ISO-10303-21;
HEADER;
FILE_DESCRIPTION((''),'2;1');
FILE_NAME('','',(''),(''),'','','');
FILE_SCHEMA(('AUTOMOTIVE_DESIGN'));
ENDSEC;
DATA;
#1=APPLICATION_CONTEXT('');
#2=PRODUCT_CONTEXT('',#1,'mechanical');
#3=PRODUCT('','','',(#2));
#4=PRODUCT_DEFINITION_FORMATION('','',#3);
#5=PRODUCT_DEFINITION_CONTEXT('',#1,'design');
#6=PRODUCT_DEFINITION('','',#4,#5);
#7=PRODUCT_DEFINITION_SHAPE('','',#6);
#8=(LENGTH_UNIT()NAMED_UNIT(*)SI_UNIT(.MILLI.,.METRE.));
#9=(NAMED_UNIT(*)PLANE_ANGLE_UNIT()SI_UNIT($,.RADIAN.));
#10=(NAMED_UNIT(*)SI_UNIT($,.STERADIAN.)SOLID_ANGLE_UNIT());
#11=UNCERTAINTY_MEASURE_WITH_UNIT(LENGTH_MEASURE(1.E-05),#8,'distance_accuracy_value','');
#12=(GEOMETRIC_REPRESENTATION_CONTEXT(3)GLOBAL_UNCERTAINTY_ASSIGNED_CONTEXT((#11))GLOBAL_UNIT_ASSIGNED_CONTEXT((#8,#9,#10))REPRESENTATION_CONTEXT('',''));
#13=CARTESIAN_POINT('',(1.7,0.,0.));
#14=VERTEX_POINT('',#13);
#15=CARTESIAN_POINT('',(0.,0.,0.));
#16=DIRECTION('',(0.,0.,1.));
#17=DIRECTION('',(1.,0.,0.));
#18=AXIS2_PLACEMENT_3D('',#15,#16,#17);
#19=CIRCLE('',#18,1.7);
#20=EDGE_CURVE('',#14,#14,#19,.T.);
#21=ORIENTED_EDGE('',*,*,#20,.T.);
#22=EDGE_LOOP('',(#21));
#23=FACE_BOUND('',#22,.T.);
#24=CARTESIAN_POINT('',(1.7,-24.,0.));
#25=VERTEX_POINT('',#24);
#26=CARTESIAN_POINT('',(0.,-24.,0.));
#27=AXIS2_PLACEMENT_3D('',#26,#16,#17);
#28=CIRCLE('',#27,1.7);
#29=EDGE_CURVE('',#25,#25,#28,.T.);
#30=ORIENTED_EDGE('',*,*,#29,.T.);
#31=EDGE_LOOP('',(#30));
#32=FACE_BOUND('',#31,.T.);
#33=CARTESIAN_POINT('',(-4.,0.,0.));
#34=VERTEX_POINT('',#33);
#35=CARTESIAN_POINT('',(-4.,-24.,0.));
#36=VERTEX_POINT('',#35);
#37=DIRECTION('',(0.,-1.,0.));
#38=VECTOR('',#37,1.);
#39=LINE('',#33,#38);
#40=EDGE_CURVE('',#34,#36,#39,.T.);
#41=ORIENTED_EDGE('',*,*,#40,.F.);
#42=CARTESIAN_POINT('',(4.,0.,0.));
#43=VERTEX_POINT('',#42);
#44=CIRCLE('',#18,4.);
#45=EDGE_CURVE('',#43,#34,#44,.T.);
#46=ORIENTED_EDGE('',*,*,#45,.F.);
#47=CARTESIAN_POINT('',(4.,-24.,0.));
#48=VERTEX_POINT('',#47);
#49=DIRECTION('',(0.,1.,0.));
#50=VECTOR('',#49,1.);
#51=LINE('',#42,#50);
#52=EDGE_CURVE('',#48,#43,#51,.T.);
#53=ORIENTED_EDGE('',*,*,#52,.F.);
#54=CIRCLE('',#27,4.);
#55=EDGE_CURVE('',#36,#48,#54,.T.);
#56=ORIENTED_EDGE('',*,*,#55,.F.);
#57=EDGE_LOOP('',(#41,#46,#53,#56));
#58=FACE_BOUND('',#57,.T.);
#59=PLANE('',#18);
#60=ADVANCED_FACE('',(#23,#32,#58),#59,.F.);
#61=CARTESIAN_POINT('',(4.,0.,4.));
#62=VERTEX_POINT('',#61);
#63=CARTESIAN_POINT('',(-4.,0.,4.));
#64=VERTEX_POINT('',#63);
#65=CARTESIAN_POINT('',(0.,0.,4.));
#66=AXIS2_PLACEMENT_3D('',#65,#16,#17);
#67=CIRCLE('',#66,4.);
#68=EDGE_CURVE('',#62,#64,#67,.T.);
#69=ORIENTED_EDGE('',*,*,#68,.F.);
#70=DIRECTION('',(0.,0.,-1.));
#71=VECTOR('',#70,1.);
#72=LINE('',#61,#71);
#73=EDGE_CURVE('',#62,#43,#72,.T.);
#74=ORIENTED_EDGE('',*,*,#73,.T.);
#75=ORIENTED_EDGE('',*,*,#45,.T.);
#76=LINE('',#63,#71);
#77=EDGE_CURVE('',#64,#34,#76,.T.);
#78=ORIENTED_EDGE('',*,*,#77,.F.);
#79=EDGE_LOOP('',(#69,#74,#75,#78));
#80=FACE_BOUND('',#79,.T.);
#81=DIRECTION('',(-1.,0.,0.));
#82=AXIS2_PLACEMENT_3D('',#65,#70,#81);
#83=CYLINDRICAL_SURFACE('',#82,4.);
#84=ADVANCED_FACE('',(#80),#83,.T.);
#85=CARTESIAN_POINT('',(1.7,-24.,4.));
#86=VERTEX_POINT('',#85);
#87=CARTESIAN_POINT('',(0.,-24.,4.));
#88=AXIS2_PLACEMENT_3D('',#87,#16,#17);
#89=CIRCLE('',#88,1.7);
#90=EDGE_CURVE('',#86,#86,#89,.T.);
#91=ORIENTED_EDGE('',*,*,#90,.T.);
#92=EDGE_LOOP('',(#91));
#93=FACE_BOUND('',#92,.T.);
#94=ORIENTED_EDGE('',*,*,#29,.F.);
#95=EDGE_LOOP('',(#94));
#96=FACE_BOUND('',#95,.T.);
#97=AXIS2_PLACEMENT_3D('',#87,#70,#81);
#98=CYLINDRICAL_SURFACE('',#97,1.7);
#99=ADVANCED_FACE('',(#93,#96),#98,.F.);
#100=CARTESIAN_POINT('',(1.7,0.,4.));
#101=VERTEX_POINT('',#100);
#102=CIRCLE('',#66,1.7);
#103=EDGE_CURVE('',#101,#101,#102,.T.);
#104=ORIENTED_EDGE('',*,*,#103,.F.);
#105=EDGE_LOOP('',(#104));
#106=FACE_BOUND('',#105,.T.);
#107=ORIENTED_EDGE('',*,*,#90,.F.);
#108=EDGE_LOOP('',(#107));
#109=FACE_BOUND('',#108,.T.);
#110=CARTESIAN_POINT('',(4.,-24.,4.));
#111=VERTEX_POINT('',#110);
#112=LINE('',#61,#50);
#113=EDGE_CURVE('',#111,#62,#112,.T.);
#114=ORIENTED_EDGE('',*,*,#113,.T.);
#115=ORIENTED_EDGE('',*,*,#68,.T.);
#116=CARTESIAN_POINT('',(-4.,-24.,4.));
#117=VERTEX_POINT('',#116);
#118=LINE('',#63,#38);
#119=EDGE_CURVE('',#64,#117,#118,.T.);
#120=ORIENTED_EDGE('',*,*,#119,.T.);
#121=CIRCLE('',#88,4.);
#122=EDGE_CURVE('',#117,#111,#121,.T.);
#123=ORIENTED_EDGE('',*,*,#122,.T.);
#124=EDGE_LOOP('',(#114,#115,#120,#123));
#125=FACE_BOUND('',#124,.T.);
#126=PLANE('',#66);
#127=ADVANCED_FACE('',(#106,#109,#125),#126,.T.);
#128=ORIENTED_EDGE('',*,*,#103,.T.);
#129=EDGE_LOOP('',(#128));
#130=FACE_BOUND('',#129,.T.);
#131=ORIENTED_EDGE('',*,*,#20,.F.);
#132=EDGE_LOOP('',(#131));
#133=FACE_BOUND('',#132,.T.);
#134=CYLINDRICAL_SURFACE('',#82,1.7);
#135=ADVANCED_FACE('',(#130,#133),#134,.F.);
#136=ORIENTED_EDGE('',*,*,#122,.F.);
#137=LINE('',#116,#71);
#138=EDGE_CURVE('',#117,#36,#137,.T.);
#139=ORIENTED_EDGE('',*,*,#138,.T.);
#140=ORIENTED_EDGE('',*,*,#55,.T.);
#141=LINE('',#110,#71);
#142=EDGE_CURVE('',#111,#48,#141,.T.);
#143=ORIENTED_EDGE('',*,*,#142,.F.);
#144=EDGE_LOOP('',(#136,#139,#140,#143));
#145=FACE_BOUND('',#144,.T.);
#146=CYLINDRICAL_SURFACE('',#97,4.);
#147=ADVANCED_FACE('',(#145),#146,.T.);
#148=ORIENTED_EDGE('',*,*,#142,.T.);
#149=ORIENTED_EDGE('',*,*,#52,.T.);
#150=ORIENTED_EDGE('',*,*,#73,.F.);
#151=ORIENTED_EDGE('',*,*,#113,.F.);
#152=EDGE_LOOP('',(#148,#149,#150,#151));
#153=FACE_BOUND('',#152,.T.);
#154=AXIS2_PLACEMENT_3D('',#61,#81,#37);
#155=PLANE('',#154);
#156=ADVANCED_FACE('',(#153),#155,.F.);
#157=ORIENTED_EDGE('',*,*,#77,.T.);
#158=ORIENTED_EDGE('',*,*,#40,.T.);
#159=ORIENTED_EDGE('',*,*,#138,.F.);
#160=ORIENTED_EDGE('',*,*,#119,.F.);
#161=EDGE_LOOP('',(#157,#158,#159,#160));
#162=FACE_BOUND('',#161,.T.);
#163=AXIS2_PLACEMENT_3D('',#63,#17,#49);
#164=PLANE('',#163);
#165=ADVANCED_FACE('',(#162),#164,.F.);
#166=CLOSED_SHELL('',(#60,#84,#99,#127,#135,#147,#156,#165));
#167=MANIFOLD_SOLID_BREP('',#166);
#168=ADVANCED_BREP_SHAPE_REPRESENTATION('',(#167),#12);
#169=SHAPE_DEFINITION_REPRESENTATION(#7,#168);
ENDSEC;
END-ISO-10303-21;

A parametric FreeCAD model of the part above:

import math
import FreeCAD as App
import Part
import Sketcher

doc = App.newDocument("Part")
body = doc.addObject("PartDesign::Body", "Body")

sketch1 = body.newObject("Sketcher::SketchObject", "Sketch")
sketch1.AttachmentSupport = (doc.getObject("XY_Plane"), [""])
sketch1.MapMode = "FlatFace"
sketch1.addGeometry([
    Part.LineSegment(App.Vector(4, -24, 0), App.Vector(4, 0, 0)),
    Part.ArcOfCircle(Part.Circle(App.Vector(0, 0, 0), App.Vector(0, 0, 1), 4), math.radians(0), math.radians(180)),
    Part.LineSegment(App.Vector(-4, 0, 0), App.Vector(-4, -24, 0)),
    Part.ArcOfCircle(Part.Circle(App.Vector(0, -24, 0), App.Vector(0, 0, 1), 4), math.radians(180), math.radians(360)),
    Part.Circle(App.Vector(0, -24, 0), App.Vector(0, 0, 1), 1.7),
    Part.Circle(App.Vector(0, 0, 0), App.Vector(0, 0, 1), 1.7),
], False)
sketch1.addConstraint([
    Sketcher.Constraint("Tangent", 0, 2, 1, 1),
    Sketcher.Constraint("Tangent", 1, 2, 2, 1),
    Sketcher.Constraint("Tangent", 2, 2, 3, 1),
    Sketcher.Constraint("Tangent", 3, 2, 0, 1),
    Sketcher.Constraint("Vertical", 0),
    Sketcher.Constraint("Vertical", 2),
    Sketcher.Constraint("Coincident", 1, 3, -1, 1),
    Sketcher.Constraint("Coincident", 5, 3, -1, 1),
    Sketcher.Constraint("Coincident", 4, 3, 3, 3),
    Sketcher.Constraint("Equal", 4, 5),
    Sketcher.Constraint("Radius", 1, 4.0),
    Sketcher.Constraint("Diameter", 4, 3.4),
    Sketcher.Constraint("DistanceY", 0, 1, 0, 2, 24.0),
])
pad1 = body.newObject("PartDesign::Pad", "Pad")
pad1.Profile = sketch1
pad1.Length = 4

doc.recompute()
